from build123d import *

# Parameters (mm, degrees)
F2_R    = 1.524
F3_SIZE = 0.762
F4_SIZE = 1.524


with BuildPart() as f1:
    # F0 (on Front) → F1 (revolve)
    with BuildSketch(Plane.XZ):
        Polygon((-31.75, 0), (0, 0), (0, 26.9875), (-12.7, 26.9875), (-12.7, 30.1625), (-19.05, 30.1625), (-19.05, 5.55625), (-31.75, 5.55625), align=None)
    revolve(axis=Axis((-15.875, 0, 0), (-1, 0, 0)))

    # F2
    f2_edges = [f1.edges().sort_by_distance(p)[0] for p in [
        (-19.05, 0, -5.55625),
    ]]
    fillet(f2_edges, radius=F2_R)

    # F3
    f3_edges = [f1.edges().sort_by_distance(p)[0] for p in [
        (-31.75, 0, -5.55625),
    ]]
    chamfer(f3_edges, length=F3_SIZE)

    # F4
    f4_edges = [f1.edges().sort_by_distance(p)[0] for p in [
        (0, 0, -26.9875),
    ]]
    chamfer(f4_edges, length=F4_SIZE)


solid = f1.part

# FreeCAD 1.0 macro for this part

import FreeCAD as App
import Part
import Sketcher

V = App.Vector
Q = App.Units.Quantity


def edges_at(feature, points):
    """Names of the edges that pass closest to the given points."""
    edges = feature.Shape.Edges
    near = lambda p: min(range(len(edges)), key=lambda i: edges[i].distToShape(Part.Vertex(*p))[0])
    return sorted({f"Edge{near(p) + 1}" for p in points})

doc = App.newDocument("Part")
params = doc.addObject("Spreadsheet::Sheet", "Params")
for row, (alias, value) in enumerate([
    ("sketch1_width", "0.5 in"),
    ("sketch1_width2", "1.25 in"),
    ("sketch1_height", "1.0625 in"),
    ("sketch1_height2", "0.125 in"),
    ("sketch1_height3", "0.96875 in"),
    ("revolution_angle", "360 deg"),
    ("fillet_radius", "0.06 in"),
    ("chamfer_size", "0.03 in"),
    ("chamfer2_size", "0.06 in"),
], start=1):
    params.set(f"A{row}", alias)
    params.set(f"B{row}", "=" + value)
    params.setAlias(f"B{row}", alias)

body = doc.addObject("PartDesign::Body", "Body")

sketch1 = body.newObject("Sketcher::SketchObject", "Sketch")
sketch1.AttachmentSupport = (doc.getObject("XZ_Plane"), [""])
sketch1.MapMode = "FlatFace"
sketch1.addGeometry(Part.LineSegment(V(-31.8, 0, 0), V(0, 0, 0)), False)
sketch1.addGeometry(Part.LineSegment(V(0, 0, 0), V(0, 27, 0)), False)
sketch1.addGeometry(Part.LineSegment(V(0, 27, 0), V(-12.7, 27, 0)), False)
sketch1.addGeometry(Part.LineSegment(V(-12.7, 27, 0), V(-12.7, 30.2, 0)), False)
sketch1.addGeometry(Part.LineSegment(V(-12.7, 30.2, 0), V(-19.1, 30.2, 0)), False)
sketch1.addGeometry(Part.LineSegment(V(-19.1, 30.2, 0), V(-19.1, 5.6, 0)), False)
sketch1.addGeometry(Part.LineSegment(V(-19.1, 5.6, 0), V(-31.8, 5.6, 0)), False)
sketch1.addGeometry(Part.LineSegment(V(-31.8, 5.6, 0), V(-31.8, 0, 0)), False)
sketch1.addConstraint(Sketcher.Constraint("Coincident", 0, 2, 1, 1))
sketch1.addConstraint(Sketcher.Constraint("Coincident", 1, 2, 2, 1))
sketch1.addConstraint(Sketcher.Constraint("Coincident", 2, 2, 3, 1))
sketch1.addConstraint(Sketcher.Constraint("Coincident", 3, 2, 4, 1))
sketch1.addConstraint(Sketcher.Constraint("Coincident", 4, 2, 5, 1))
sketch1.addConstraint(Sketcher.Constraint("Coincident", 5, 2, 6, 1))
sketch1.addConstraint(Sketcher.Constraint("Coincident", 6, 2, 7, 1))
sketch1.addConstraint(Sketcher.Constraint("Coincident", 7, 2, 0, 1))
sketch1.addConstraint(Sketcher.Constraint("Horizontal", 0))
sketch1.addConstraint(Sketcher.Constraint("Vertical", 1))
sketch1.addConstraint(Sketcher.Constraint("Horizontal", 2))
sketch1.addConstraint(Sketcher.Constraint("Vertical", 3))
sketch1.addConstraint(Sketcher.Constraint("Horizontal", 4))
sketch1.addConstraint(Sketcher.Constraint("Vertical", 5))
sketch1.addConstraint(Sketcher.Constraint("Horizontal", 6))
sketch1.addConstraint(Sketcher.Constraint("Vertical", 7))
sketch1.addConstraint(Sketcher.Constraint("Coincident", 0, 2, -1, 1))
sketch1.addConstraint(Sketcher.Constraint("Equal", 2, 6))
sketch1.addConstraint(Sketcher.Constraint("DistanceX", 2, 2, 2, 1, Q("0.5 in")))
sketch1.addConstraint(Sketcher.Constraint("DistanceX", 0, 1, 0, 2, Q("1.25 in")))
sketch1.addConstraint(Sketcher.Constraint("DistanceY", 1, 1, 1, 2, Q("1.0625 in")))
sketch1.addConstraint(Sketcher.Constraint("DistanceY", 3, 1, 3, 2, Q("0.125 in")))
sketch1.addConstraint(Sketcher.Constraint("DistanceY", 5, 2, 5, 1, Q("0.96875 in")))
sketch1.setExpression("Constraints[18]", "Params.sketch1_width")
sketch1.setExpression("Constraints[19]", "Params.sketch1_width2")
sketch1.setExpression("Constraints[20]", "Params.sketch1_height")
sketch1.setExpression("Constraints[21]", "Params.sketch1_height2")
sketch1.setExpression("Constraints[22]", "Params.sketch1_height3")
revolution = body.newObject("PartDesign::Revolution", "Revolution")
revolution.Profile = sketch1
revolution.ReferenceAxis = (sketch1, ["H_Axis"])
revolution.setExpression("Angle", "Params.revolution_angle")
doc.recompute()

fillet = body.newObject("PartDesign::Fillet", "Fillet")
fillet.Base = (revolution, edges_at(revolution, [(-19.05, 0, -5.556)]))
fillet.setExpression("Radius", "Params.fillet_radius")
doc.recompute()

chamfer = body.newObject("PartDesign::Chamfer", "Chamfer")
chamfer.Base = (fillet, edges_at(fillet, [(-31.75, 0, -5.556)]))
chamfer.setExpression("Size", "Params.chamfer_size")
doc.recompute()

chamfer2 = body.newObject("PartDesign::Chamfer", "Chamfer001")
chamfer2.Base = (chamfer, edges_at(chamfer, [(0, 0, -26.988)]))
chamfer2.setExpression("Size", "Params.chamfer2_size")

doc.recompute()
